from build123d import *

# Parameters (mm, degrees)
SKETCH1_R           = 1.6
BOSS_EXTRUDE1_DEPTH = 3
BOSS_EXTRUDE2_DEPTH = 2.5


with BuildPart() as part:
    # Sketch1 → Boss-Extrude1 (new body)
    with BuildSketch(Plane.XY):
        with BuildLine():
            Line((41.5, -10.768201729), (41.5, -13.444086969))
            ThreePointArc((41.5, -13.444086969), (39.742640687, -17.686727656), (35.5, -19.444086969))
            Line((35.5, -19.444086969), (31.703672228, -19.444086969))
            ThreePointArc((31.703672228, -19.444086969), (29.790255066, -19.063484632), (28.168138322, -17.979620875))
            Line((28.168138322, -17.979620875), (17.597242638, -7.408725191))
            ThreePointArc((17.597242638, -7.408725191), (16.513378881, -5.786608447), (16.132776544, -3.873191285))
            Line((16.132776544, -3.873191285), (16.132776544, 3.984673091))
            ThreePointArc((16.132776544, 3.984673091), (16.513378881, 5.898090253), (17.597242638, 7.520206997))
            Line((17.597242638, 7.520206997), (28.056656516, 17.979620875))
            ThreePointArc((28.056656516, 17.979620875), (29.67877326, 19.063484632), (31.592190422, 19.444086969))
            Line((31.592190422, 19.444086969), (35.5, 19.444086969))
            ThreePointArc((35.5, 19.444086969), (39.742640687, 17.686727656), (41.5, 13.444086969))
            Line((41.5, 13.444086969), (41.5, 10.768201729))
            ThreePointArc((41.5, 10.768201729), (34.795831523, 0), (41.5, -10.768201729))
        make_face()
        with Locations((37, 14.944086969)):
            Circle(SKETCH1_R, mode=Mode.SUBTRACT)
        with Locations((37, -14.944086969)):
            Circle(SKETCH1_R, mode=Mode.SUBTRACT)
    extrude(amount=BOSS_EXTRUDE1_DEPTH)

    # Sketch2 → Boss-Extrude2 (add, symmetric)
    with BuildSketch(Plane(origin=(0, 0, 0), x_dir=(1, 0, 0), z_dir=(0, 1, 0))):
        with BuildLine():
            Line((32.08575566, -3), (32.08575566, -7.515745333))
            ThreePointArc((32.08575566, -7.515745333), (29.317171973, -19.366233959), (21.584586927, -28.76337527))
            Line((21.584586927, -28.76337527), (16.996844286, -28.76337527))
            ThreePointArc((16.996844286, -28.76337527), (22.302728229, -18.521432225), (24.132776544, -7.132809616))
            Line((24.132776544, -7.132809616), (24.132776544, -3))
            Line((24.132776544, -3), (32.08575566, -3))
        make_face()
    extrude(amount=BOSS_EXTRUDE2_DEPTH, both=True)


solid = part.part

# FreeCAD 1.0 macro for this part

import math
import FreeCAD as App
import Part
import Sketcher

V = App.Vector

doc = App.newDocument("Part")
body = doc.addObject("PartDesign::Body", "Body")

sketch1 = body.newObject("Sketcher::SketchObject", "Sketch")
sketch1.AttachmentSupport = (doc.getObject("XY_Plane"), [""])
sketch1.MapMode = "FlatFace"
sketch1.addGeometry([
    Part.LineSegment(V(41.5, -13.444087, 0), V(41.5, -10.768202, 0)),
    Part.ArcOfCircle(Part.Circle(V(46.795832, 0, 0), V(0, 0, 1), 12), math.radians(116.188088), math.radians(243.811912)),
    Part.LineSegment(V(41.5, 10.768202, 0), V(41.5, 13.444087, 0)),
    Part.ArcOfCircle(Part.Circle(V(35.5, 13.444087, 0), V(0, 0, 1), 6), math.radians(0), math.radians(90)),
    Part.LineSegment(V(35.5, 19.444087, 0), V(31.59219, 19.444087, 0)),
    Part.ArcOfCircle(Part.Circle(V(31.59219, 14.444087, 0), V(0, 0, 1), 5), math.radians(90), math.radians(135)),
    Part.LineSegment(V(28.056657, 17.979621, 0), V(17.597243, 7.520207, 0)),
    Part.ArcOfCircle(Part.Circle(V(21.132777, 3.984673, 0), V(0, 0, 1), 5), math.radians(135), math.radians(180)),
    Part.LineSegment(V(16.132777, 3.984673, 0), V(16.132777, -3.873191, 0)),
    Part.ArcOfCircle(Part.Circle(V(21.132777, -3.873191, 0), V(0, 0, 1), 5), math.radians(180), math.radians(225)),
    Part.LineSegment(V(17.597243, -7.408725, 0), V(28.168138, -17.979621, 0)),
    Part.ArcOfCircle(Part.Circle(V(31.703672, -14.444087, 0), V(0, 0, 1), 5), math.radians(-135), math.radians(-90)),
    Part.LineSegment(V(31.703672, -19.444087, 0), V(35.5, -19.444087, 0)),
    Part.ArcOfCircle(Part.Circle(V(35.5, -13.444087, 0), V(0, 0, 1), 6), math.radians(-90), math.radians(0)),
    Part.Circle(V(37, -14.944087, 0), V(0, 0, 1), 1.6),
    Part.Circle(V(37, 14.944087, 0), V(0, 0, 1), 1.6),
], False)
sketch1.addConstraint([
    Sketcher.Constraint("Coincident", 0, 2, 1, 2),
    Sketcher.Constraint("Coincident", 1, 1, 2, 1),
    Sketcher.Constraint("Tangent", 2, 2, 3, 1),
    Sketcher.Constraint("Tangent", 3, 2, 4, 1),
    Sketcher.Constraint("Tangent", 4, 2, 5, 1),
    Sketcher.Constraint("Tangent", 5, 2, 6, 1),
    Sketcher.Constraint("Tangent", 6, 2, 7, 1),
    Sketcher.Constraint("Tangent", 7, 2, 8, 1),
    Sketcher.Constraint("Tangent", 8, 2, 9, 1),
    Sketcher.Constraint("Tangent", 9, 2, 10, 1),
    Sketcher.Constraint("Tangent", 10, 2, 11, 1),
    Sketcher.Constraint("Tangent", 11, 2, 12, 1),
    Sketcher.Constraint("Tangent", 12, 2, 13, 1),
    Sketcher.Constraint("Tangent", 13, 2, 0, 1),
    Sketcher.Constraint("Vertical", 0),
    Sketcher.Constraint("Vertical", 2),
    Sketcher.Constraint("Horizontal", 4),
    Sketcher.Constraint("Vertical", 8),
    Sketcher.Constraint("Horizontal", 12),
    Sketcher.Constraint("Equal", 5, 7),
    Sketcher.Constraint("Equal", 7, 9),
    Sketcher.Constraint("Equal", 9, 11),
    Sketcher.Constraint("Equal", 3, 13),
    Sketcher.Constraint("Equal", 14, 15),
    Sketcher.Constraint("Symmetric", 3, 3, 13, 3, -1),
    Sketcher.Constraint("Symmetric", 14, 3, 15, 3, -1),
    Sketcher.Constraint("PointOnObject", 1, 3, -1),
    Sketcher.Constraint("Perpendicular", 6, 10),
    Sketcher.Constraint("Vertical", 6, 2, 9, 2),
    Sketcher.Constraint("Radius", 1, 12.0),
    Sketcher.Constraint("Radius", 3, 6.0),
    Sketcher.Constraint("Radius", 5, 5.0),
    Sketcher.Constraint("Diameter", 14, 3.2),
    Sketcher.Constraint("DistanceX", -1, 1, 14, 3, 37.0),
    Sketcher.Constraint("DistanceX", -1, 1, 3, 3, 35.5),
    Sketcher.Constraint("DistanceY", 14, 3, 13, 3, 1.5),
    Sketcher.Constraint("DistanceX", 4, 2, 4, 1, 3.90781),
    Sketcher.Constraint("DistanceY", 0, 2, -1, 1, 10.768202),
    Sketcher.Constraint("DistanceY", 9, 3, 6, 2, 11.393398),
    Sketcher.Constraint("DistanceX", 12, 1, 12, 2, 3.796328),
    Sketcher.Constraint("DistanceY", 0, 1, 0, 2, 2.675885),
])
pad1 = body.newObject("PartDesign::Pad", "Pad")
pad1.Profile = sketch1
pad1.Length = 3

sketch2 = body.newObject("Sketcher::SketchObject", "Sketch001")
sketch2.AttachmentSupport = (doc.getObject("XZ_Plane"), [""])
sketch2.MapMode = "FlatFace"
sketch2.addGeometry([
    Part.LineSegment(V(32.085756, 7.515745, 0), V(32.085756, 3, 0)),
    Part.LineSegment(V(32.085756, 3, 0), V(24.132777, 3, 0)),
    Part.LineSegment(V(24.132777, 3, 0), V(24.132777, 7.13281, 0)),
    Part.ArcOfCircle(Part.Circle(V(-12.218669, 7.13281, 0), V(0, 0, 1), 36.351445), math.radians(0), math.radians(36.515487)),
    Part.LineSegment(V(16.996844, 28.763375, 0), V(21.584587, 28.763375, 0)),
    Part.ArcOfCircle(Part.Circle(V(5.339384, 7.515745, 0), V(0, 0, 1), 26.746372), math.radians(0), math.radians(52.599722)),
], False)
sketch2.addConstraint([
    Sketcher.Constraint("Coincident", 0, 2, 1, 1),
    Sketcher.Constraint("Coincident", 1, 2, 2, 1),
    Sketcher.Constraint("Tangent", 2, 2, 3, 1),
    Sketcher.Constraint("Coincident", 3, 2, 4, 1),
    Sketcher.Constraint("Coincident", 4, 2, 5, 2),
    Sketcher.Constraint("Tangent", 5, 1, 0, 1),
    Sketcher.Constraint("Vertical", 0),
    Sketcher.Constraint("Horizontal", 1),
    Sketcher.Constraint("Vertical", 2),
    Sketcher.Constraint("Horizontal", 4),
    Sketcher.Constraint("DistanceY", -1, 1, 0, 2, 3.0),
    Sketcher.Constraint("Radius", 5, 26.746372),
    Sketcher.Constraint("Radius", 3, 36.351445),
    Sketcher.Constraint("DistanceX", 1, 2, 1, 1, 7.952979),
    Sketcher.Constraint("DistanceY", 2, 1, 2, 2, 4.13281),
    Sketcher.Constraint("DistanceX", 4, 1, 4, 2, 4.587743),
    Sketcher.Constraint("DistanceY", 0, 2, 0, 1, 4.515745),
    Sketcher.Constraint("DistanceX", 3, 3, -1, 1, 12.218669),
])
pad2 = body.newObject("PartDesign::Pad", "Pad001")
pad2.Profile = sketch2
pad2.Length = 5
pad2.Midplane = True

doc.recompute()
